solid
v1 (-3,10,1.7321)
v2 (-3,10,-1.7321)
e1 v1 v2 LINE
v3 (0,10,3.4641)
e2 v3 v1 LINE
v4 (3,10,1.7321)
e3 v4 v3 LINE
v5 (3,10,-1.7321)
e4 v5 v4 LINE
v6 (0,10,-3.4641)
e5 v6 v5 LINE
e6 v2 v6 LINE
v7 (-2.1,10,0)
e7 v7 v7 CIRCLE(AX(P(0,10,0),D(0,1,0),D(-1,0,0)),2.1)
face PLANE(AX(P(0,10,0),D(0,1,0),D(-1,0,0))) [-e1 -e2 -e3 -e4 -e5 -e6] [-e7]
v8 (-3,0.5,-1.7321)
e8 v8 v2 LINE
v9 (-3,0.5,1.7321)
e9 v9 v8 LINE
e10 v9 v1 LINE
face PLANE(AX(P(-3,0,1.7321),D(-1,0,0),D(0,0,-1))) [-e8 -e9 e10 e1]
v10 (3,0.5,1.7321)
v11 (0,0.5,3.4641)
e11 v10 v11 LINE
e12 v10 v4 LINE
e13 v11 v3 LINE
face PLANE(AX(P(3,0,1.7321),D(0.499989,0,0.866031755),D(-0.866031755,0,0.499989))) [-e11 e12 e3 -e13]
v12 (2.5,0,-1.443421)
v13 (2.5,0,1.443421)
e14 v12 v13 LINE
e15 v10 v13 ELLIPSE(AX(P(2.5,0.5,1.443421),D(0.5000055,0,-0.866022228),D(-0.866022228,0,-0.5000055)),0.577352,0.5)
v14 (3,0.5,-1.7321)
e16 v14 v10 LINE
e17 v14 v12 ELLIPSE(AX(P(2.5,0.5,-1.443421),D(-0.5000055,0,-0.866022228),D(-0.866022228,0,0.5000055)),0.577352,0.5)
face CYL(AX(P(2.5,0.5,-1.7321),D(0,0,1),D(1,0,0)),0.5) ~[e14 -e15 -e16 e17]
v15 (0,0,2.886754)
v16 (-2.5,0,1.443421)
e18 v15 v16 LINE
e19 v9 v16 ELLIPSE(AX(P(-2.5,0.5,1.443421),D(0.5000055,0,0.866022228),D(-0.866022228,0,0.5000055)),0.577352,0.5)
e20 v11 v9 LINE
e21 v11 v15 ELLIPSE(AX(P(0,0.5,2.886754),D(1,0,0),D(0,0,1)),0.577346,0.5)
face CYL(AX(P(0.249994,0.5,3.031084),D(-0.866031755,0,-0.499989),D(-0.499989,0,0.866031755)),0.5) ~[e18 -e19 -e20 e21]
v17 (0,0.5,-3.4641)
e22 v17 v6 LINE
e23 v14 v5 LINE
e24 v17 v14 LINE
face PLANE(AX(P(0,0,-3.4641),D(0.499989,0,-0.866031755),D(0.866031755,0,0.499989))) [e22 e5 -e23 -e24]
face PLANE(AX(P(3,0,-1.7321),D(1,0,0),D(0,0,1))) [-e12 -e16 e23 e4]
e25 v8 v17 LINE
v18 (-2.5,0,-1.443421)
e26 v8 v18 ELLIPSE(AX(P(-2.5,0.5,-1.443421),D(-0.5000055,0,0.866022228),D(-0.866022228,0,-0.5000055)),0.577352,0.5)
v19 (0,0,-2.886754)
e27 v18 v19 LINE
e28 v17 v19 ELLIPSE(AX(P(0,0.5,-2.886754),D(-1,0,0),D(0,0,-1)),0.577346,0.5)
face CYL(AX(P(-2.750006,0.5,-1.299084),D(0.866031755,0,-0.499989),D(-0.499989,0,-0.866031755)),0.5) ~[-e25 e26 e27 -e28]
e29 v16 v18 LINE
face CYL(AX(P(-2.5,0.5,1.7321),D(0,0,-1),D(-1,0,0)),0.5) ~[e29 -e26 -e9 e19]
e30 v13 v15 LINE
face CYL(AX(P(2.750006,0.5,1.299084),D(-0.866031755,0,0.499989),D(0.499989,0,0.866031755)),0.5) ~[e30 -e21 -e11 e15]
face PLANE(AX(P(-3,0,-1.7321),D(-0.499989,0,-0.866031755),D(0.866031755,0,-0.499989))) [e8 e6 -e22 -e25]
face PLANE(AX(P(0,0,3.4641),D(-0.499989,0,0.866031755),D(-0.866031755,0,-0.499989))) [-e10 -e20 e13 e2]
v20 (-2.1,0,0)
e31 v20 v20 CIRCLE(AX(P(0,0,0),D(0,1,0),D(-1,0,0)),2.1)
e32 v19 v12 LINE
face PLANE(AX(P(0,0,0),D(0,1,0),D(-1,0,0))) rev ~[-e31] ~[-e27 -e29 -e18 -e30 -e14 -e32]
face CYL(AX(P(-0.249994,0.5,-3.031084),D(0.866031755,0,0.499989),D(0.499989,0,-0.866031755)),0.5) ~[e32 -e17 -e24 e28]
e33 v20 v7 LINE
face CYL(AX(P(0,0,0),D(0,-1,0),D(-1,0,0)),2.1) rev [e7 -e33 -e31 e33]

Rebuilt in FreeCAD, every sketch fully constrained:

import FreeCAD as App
import Part
import Sketcher
Q = App.Units.Quantity


def edges_at(feature, points):
    """Names of the edges that pass closest to the given points."""
    edges = feature.Shape.Edges
    near = lambda p: min(range(len(edges)), key=lambda i: edges[i].distToShape(Part.Vertex(*p))[0])
    return sorted({f"Edge{near(p) + 1}" for p in points})

doc = App.newDocument("Part")
body = doc.addObject("PartDesign::Body", "Body")

sketch1 = body.newObject("Sketcher::SketchObject", "Sketch")
sketch1.AttachmentSupport = (doc.getObject("XZ_Plane"), [""])
sketch1.MapMode = "FlatFace"
sketch1.addGeometry(Part.LineSegment(App.Vector(3, -1.7, 0), App.Vector(0, -3.5, 0)), False)
sketch1.addGeometry(Part.LineSegment(App.Vector(0, -3.5, 0), App.Vector(-3, -1.7, 0)), False)
sketch1.addGeometry(Part.LineSegment(App.Vector(-3, -1.7, 0), App.Vector(-3, 1.7, 0)), False)
sketch1.addGeometry(Part.LineSegment(App.Vector(-3, 1.7, 0), App.Vector(0, 3.5, 0)), False)
sketch1.addGeometry(Part.LineSegment(App.Vector(0, 3.5, 0), App.Vector(3, 1.7, 0)), False)
sketch1.addGeometry(Part.LineSegment(App.Vector(3, 1.7, 0), App.Vector(3, -1.7, 0)), False)
sketch1.addGeometry(Part.Circle(App.Vector(0, 0, 0), App.Vector(0, 0, 1), 2.1), False)
sketch1.addConstraint(Sketcher.Constraint("Coincident", 0, 2, 1, 1))
sketch1.addConstraint(Sketcher.Constraint("Coincident", 1, 2, 2, 1))
sketch1.addConstraint(Sketcher.Constraint("Coincident", 2, 2, 3, 1))
sketch1.addConstraint(Sketcher.Constraint("Coincident", 3, 2, 4, 1))
sketch1.addConstraint(Sketcher.Constraint("Coincident", 4, 2, 5, 1))
sketch1.addConstraint(Sketcher.Constraint("Coincident", 5, 2, 0, 1))
sketch1.addConstraint(Sketcher.Constraint("Vertical", 2))
sketch1.addConstraint(Sketcher.Constraint("Vertical", 5))
sketch1.addConstraint(Sketcher.Constraint("Coincident", 6, 3, -1, 1))
sketch1.addConstraint(Sketcher.Constraint("Symmetric", 0, 2, 3, 2, -1, 1))
sketch1.addConstraint(Sketcher.Constraint("Symmetric", 1, 2, 4, 2, -1, 1))
sketch1.addConstraint(Sketcher.Constraint("PointOnObject", 0, 2, -2))
sketch1.addConstraint(Sketcher.Constraint("Parallel", 0, 3))
sketch1.addConstraint(Sketcher.Constraint("Horizontal", 2, 2, 4, 2))
sketch1.addConstraint(Sketcher.Constraint("Diameter", 6, 4.2))
sketch1.addConstraint(Sketcher.Constraint("DistanceX", 1, 2, -1, 1, 3.0))
sketch1.addConstraint(Sketcher.Constraint("Angle", 0, Q("-150.0007 deg")))
sketch1.addConstraint(Sketcher.Constraint("DistanceY", 2, 1, 2, 2, 3.4642))
pad1 = body.newObject("PartDesign::Pad", "Pad")
pad1.Profile = sketch1
pad1.Length = 10
pad1.Reversed = True
doc.recompute()

fillet = body.newObject("PartDesign::Fillet", "Fillet")
fillet.Base = (pad1, edges_at(pad1, [
    (1.5, 0, 2.598),
    (3, 0, 0),
    (-1.5, 0, 2.598),
    (-3, 0, 0),
    (-1.5, 0, -2.598),
    (1.5, 0, -2.598),
]))
fillet.Radius = 0.5

doc.recompute()
